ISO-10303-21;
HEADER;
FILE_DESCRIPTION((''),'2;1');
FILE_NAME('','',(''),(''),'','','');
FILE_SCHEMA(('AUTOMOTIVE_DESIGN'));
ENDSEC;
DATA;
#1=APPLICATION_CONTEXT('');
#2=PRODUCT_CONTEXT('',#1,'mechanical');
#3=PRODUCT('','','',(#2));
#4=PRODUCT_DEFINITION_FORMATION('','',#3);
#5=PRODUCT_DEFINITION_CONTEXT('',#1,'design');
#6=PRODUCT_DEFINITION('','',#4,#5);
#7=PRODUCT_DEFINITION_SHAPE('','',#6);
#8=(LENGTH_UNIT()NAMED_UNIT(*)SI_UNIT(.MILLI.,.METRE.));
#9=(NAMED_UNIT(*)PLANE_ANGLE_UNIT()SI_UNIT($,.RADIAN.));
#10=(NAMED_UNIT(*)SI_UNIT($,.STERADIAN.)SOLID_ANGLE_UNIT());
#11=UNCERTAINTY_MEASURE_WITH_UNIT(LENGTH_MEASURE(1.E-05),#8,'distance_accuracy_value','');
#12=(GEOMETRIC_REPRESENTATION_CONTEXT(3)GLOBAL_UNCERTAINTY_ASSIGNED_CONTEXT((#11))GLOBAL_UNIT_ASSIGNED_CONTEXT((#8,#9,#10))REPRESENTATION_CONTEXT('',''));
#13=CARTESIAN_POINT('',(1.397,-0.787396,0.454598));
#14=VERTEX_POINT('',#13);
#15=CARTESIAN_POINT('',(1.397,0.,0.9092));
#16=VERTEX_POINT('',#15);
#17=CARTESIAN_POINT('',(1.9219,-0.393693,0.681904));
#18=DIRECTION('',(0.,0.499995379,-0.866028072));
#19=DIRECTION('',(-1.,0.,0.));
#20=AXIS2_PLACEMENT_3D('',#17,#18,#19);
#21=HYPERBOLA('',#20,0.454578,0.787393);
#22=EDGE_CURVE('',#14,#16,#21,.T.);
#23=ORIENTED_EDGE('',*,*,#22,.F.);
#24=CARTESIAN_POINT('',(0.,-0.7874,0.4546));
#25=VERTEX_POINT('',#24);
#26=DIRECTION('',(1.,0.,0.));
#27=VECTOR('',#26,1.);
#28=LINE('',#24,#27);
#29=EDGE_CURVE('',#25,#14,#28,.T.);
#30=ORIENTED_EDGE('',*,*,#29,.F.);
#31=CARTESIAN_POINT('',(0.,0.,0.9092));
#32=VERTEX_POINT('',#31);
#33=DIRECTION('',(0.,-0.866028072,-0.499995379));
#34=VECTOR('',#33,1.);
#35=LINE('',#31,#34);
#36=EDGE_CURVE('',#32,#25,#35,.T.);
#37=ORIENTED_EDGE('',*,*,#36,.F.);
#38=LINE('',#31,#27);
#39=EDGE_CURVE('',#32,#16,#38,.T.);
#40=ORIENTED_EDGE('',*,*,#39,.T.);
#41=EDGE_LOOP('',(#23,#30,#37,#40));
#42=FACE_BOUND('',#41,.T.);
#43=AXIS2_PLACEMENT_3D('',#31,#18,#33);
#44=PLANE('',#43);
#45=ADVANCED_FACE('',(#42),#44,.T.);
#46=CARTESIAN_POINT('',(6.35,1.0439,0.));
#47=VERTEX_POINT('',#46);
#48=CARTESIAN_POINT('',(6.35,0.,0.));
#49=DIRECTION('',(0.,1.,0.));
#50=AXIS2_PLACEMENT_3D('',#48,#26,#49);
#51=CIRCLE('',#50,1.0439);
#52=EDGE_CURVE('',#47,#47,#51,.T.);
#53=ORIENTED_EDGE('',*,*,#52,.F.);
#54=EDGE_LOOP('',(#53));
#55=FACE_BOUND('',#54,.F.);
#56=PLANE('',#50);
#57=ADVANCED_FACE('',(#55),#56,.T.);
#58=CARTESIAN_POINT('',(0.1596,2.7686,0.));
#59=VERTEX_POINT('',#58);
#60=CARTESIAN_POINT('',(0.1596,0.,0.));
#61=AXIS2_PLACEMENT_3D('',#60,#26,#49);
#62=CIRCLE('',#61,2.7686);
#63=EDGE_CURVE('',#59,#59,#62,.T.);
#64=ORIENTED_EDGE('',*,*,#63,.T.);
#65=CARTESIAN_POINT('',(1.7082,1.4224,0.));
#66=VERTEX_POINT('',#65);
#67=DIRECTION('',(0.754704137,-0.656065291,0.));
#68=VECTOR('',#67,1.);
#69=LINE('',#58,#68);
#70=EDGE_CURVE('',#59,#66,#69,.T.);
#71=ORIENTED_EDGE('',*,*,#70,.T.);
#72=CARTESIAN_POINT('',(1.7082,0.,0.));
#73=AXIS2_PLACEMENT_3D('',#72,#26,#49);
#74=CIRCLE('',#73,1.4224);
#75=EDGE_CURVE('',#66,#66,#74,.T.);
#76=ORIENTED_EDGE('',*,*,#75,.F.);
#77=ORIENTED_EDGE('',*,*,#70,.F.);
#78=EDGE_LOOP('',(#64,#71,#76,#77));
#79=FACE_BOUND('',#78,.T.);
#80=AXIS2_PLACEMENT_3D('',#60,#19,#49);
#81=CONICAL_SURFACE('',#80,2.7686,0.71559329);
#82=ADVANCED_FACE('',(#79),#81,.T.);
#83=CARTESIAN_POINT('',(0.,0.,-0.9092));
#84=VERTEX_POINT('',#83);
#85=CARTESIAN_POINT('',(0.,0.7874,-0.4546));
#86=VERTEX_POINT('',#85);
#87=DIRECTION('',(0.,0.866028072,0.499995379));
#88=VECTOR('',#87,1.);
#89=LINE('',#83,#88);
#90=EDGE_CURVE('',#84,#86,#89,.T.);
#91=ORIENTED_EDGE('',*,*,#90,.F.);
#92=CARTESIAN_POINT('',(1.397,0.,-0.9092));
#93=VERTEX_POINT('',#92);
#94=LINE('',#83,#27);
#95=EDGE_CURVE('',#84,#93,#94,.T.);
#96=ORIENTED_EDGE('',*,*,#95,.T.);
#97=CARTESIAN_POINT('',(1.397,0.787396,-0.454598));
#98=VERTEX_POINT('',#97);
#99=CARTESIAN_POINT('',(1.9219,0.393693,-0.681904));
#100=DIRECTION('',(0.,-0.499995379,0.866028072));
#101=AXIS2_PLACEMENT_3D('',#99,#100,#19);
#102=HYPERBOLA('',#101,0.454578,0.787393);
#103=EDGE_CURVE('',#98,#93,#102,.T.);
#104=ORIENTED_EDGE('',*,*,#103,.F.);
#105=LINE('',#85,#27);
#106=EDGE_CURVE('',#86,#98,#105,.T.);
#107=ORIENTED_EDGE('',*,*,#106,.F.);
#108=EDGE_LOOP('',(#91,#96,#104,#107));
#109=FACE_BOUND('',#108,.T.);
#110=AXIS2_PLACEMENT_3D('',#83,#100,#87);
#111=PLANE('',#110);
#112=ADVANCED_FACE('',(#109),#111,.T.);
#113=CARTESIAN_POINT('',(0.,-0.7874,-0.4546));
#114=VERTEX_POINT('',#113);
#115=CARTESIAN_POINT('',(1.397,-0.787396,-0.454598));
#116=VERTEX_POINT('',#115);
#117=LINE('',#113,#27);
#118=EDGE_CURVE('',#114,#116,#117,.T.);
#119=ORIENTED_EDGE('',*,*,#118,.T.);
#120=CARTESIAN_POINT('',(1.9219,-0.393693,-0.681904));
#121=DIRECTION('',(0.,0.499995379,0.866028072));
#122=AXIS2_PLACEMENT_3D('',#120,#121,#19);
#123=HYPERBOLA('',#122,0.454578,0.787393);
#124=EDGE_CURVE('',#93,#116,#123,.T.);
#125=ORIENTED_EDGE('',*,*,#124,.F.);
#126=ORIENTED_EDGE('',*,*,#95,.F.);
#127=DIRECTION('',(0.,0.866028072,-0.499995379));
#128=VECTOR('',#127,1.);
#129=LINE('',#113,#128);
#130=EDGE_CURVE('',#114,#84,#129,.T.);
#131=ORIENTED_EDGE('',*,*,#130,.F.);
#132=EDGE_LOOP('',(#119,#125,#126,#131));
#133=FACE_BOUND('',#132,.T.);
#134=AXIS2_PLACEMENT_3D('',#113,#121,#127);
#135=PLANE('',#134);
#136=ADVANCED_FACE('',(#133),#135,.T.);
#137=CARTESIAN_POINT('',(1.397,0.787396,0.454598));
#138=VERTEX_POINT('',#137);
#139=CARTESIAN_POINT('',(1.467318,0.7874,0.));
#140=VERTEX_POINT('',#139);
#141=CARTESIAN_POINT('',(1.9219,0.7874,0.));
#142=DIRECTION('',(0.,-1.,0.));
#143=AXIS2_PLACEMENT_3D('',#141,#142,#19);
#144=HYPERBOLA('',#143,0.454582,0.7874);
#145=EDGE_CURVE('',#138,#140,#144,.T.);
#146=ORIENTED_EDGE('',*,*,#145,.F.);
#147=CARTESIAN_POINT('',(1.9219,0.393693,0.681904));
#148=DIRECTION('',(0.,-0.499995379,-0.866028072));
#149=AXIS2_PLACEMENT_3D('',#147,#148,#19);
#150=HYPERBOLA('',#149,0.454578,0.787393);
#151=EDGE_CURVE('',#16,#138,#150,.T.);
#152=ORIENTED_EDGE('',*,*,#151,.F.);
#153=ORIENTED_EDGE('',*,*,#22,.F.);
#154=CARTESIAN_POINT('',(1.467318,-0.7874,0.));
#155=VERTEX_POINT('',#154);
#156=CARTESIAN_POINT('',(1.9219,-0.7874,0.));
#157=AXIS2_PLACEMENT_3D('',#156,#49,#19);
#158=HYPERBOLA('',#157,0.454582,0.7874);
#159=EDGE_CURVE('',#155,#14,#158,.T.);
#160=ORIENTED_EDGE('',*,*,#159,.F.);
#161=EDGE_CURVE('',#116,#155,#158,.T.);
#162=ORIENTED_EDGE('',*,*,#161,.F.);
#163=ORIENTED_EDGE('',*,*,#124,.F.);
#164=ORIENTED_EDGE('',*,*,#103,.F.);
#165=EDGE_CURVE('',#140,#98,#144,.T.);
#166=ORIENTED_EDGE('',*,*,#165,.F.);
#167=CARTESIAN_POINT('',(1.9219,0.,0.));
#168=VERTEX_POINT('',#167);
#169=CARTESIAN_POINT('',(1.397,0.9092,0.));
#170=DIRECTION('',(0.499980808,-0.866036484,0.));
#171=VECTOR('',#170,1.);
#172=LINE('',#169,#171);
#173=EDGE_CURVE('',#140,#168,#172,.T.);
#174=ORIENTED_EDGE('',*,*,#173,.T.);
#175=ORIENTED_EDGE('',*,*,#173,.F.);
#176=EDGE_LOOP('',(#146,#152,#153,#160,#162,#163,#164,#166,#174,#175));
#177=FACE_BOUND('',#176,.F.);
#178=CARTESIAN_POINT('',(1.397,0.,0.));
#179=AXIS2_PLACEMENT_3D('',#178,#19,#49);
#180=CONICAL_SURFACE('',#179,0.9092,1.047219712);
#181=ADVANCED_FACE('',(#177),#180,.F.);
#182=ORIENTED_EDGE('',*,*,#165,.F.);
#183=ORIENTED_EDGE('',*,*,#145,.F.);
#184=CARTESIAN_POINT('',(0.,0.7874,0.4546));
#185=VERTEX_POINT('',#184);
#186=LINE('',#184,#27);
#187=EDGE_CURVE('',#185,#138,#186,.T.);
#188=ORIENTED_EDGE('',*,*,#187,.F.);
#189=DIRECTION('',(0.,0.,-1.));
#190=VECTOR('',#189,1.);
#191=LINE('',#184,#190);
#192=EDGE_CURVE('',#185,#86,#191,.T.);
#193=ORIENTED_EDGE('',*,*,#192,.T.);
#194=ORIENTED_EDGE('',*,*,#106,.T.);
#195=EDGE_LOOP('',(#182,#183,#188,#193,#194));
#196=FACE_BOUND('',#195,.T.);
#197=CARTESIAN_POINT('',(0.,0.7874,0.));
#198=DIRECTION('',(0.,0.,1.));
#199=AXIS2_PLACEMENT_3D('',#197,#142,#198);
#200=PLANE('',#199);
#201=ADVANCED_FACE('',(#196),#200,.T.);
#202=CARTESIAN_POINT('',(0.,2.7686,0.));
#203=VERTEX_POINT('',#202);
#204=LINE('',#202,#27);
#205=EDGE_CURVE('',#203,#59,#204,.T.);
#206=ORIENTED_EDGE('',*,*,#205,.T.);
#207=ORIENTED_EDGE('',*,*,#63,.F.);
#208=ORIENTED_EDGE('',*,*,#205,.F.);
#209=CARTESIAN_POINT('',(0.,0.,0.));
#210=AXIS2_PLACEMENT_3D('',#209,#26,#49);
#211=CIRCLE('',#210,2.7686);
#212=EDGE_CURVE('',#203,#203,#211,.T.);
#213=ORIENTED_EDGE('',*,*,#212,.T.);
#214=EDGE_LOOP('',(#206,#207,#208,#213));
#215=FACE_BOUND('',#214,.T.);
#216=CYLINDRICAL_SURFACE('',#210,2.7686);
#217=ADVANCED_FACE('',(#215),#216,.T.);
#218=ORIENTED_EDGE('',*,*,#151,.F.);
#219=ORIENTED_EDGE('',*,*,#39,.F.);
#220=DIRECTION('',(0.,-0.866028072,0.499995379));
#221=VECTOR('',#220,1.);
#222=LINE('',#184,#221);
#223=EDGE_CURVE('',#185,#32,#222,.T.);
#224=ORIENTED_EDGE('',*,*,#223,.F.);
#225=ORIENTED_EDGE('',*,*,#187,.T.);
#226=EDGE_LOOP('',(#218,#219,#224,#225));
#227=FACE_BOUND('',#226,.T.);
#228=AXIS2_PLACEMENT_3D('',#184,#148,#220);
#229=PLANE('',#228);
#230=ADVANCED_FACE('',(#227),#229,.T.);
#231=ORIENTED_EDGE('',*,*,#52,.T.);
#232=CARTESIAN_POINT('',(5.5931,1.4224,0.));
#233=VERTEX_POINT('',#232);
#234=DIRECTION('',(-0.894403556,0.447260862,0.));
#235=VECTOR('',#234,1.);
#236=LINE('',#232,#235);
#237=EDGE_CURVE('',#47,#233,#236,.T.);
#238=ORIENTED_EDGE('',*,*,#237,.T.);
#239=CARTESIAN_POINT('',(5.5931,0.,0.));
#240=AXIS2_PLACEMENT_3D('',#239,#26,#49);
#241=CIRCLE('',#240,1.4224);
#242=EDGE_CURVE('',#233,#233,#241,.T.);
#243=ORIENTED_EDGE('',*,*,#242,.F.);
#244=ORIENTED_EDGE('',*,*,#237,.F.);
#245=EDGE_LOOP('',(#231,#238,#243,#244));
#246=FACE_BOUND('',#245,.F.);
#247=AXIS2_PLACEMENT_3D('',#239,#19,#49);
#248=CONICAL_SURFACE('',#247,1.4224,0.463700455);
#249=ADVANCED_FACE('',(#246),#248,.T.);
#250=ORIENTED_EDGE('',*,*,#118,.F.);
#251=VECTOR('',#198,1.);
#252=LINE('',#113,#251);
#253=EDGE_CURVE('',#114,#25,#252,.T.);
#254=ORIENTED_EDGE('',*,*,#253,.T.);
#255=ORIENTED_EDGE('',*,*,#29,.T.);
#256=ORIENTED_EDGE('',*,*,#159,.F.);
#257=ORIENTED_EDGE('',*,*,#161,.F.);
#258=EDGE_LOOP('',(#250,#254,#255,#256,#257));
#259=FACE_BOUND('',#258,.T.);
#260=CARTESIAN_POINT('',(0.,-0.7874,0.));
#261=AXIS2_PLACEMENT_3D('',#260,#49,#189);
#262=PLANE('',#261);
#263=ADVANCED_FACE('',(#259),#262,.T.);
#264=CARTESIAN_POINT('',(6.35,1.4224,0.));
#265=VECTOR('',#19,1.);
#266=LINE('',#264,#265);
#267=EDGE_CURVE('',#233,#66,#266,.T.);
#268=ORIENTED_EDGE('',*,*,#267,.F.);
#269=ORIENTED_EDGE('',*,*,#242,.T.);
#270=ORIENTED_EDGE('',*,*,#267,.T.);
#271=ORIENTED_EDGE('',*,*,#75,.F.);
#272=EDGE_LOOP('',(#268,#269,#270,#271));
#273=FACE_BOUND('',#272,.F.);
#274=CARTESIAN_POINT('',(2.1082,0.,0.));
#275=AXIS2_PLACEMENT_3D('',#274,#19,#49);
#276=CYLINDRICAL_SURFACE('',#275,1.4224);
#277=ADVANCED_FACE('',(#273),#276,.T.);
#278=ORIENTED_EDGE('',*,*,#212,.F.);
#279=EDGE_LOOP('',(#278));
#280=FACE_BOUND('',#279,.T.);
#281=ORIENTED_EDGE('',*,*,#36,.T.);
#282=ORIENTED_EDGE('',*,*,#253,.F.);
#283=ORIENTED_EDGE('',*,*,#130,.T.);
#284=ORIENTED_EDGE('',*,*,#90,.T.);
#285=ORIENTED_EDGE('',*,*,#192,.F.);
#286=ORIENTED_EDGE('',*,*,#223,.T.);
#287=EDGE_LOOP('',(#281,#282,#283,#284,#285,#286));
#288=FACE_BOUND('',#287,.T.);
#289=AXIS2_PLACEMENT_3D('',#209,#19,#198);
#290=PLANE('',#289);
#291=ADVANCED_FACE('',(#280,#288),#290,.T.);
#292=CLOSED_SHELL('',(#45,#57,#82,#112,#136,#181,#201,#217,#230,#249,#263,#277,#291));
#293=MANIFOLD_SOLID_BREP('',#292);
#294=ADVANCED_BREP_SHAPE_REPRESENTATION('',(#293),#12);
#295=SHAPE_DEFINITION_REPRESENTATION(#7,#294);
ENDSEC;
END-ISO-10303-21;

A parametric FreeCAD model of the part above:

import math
import FreeCAD as App
import Part
import Sketcher
Q = App.Units.Quantity


def edges_at(feature, points):
    """Names of the edges that pass closest to the given points."""
    edges = feature.Shape.Edges
    near = lambda p: min(range(len(edges)), key=lambda i: edges[i].distToShape(Part.Vertex(*p))[0])
    return sorted({f"Edge{near(p) + 1}" for p in points})

doc = App.newDocument("Part")
body = doc.addObject("PartDesign::Body", "Body")

# Sketch on XY plane
sketch1 = body.newObject("Sketcher::SketchObject", "Sketch")
sketch1.AttachmentSupport = (doc.getObject("XY_Plane"), [""])
sketch1.MapMode = "FlatFace"
sketch1.addGeometry(Part.LineSegment(App.Vector(1.92, 0, 0), App.Vector(6.35, 0, 0)), False)
sketch1.addGeometry(Part.LineSegment(App.Vector(6.35, 0, 0), App.Vector(6.35, 1.42, 0)), False)
sketch1.addGeometry(Part.LineSegment(App.Vector(6.35, 1.42, 0), App.Vector(1.71, 1.42, 0)), False)
sketch1.addGeometry(Part.LineSegment(App.Vector(1.71, 1.42, 0), App.Vector(0.16, 2.77, 0)), False)
sketch1.addGeometry(Part.LineSegment(App.Vector(0.16, 2.77, 0), App.Vector(0, 2.77, 0)), False)
sketch1.addGeometry(Part.LineSegment(App.Vector(0, 2.77, 0), App.Vector(0, 0.91, 0)), False)
sketch1.addGeometry(Part.LineSegment(App.Vector(0, 0.91, 0), App.Vector(1.4, 0.91, 0)), False)
sketch1.addGeometry(Part.LineSegment(App.Vector(1.4, 0.91, 0), App.Vector(1.92, 0, 0)), False)
sketch1.addConstraint(Sketcher.Constraint("Coincident", 0, 2, 1, 1))
sketch1.addConstraint(Sketcher.Constraint("Coincident", 1, 2, 2, 1))
sketch1.addConstraint(Sketcher.Constraint("Coincident", 2, 2, 3, 1))
sketch1.addConstraint(Sketcher.Constraint("Coincident", 3, 2, 4, 1))
sketch1.addConstraint(Sketcher.Constraint("Coincident", 4, 2, 5, 1))
sketch1.addConstraint(Sketcher.Constraint("Coincident", 5, 2, 6, 1))
sketch1.addConstraint(Sketcher.Constraint("Coincident", 6, 2, 7, 1))
sketch1.addConstraint(Sketcher.Constraint("Coincident", 7, 2, 0, 1))
sketch1.addConstraint(Sketcher.Constraint("Horizontal", 0))
sketch1.addConstraint(Sketcher.Constraint("Vertical", 1))
sketch1.addConstraint(Sketcher.Constraint("Horizontal", 2))
sketch1.addConstraint(Sketcher.Constraint("Horizontal", 4))
sketch1.addConstraint(Sketcher.Constraint("Vertical", 5))
sketch1.addConstraint(Sketcher.Constraint("Horizontal", 6))
sketch1.addConstraint(Sketcher.Constraint("PointOnObject", 0, 2, -1))
sketch1.addConstraint(Sketcher.Constraint("PointOnObject", 4, 2, -2))
sketch1.addConstraint(Sketcher.Constraint("DistanceX", 6, 1, 6, 2, Q("0.055 in")))
sketch1.addConstraint(Sketcher.Constraint("DistanceX", -1, 1, 0, 2, Q("0.25 in")))
sketch1.addConstraint(Sketcher.Constraint("Angle", 3, Q("138.9995 deg")))
sketch1.addConstraint(Sketcher.Constraint("DistanceY", 1, 1, 1, 2, Q("0.056 in")))
sketch1.addConstraint(Sketcher.Constraint("DistanceX", -1, 1, 2, 2, 1.7082))
sketch1.addConstraint(Sketcher.Constraint("DistanceY", 5, 2, 5, 1, Q("0.0732 in")))
sketch1.addConstraint(Sketcher.Constraint("DistanceY", -1, 1, 3, 2, Q("0.109 in")))
sketch1.addConstraint(Sketcher.Constraint("DistanceX", 0, 1, 0, 2, 4.428))
revolution = body.newObject("PartDesign::Revolution", "Revolution")
revolution.Profile = sketch1
revolution.ReferenceAxis = (sketch1, ["H_Axis"])
revolution.Angle = 360

# Sketch on YZ plane
sketch2 = body.newObject("Sketcher::SketchObject", "Sketch001")
sketch2.AttachmentSupport = (doc.getObject("YZ_Plane"), [""])
sketch2.MapMode = "FlatFace"
sketch2.addGeometry(Part.LineSegment(App.Vector(0.8, 0.5, 0), App.Vector(0, 0.9, 0)), False)
sketch2.addGeometry(Part.ArcOfCircle(Part.Circle(App.Vector(0, 0, 0), App.Vector(0, 0, 1), 0.9), math.radians(30), math.radians(90)), False)
sketch2.addGeometry(Part.ArcOfCircle(Part.Circle(App.Vector(0, 0, 0), App.Vector(0, 0, 1), 0.9), math.radians(90), math.radians(150)), False)
sketch2.addGeometry(Part.LineSegment(App.Vector(0, 0.9, 0), App.Vector(-0.8, 0.5, 0)), False)
sketch2.addGeometry(Part.ArcOfCircle(Part.Circle(App.Vector(0, 0, 0), App.Vector(0, 0, 1), 0.9), math.radians(-30), math.radians(30)), False)
sketch2.addGeometry(Part.LineSegment(App.Vector(0.8, 0.5, 0), App.Vector(0.8, -0.5, 0)), False)
sketch2.addGeometry(Part.LineSegment(App.Vector(-0.8, 0.5, 0), App.Vector(-0.8, -0.5, 0)), False)
sketch2.addGeometry(Part.ArcOfCircle(Part.Circle(App.Vector(0, 0, 0), App.Vector(0, 0, 1), 0.9), math.radians(150), math.radians(210)), False)
sketch2.addGeometry(Part.LineSegment(App.Vector(-0.8, -0.5, 0), App.Vector(0, -0.9, 0)), False)
sketch2.addGeometry(Part.ArcOfCircle(Part.Circle(App.Vector(0, 0, 0), App.Vector(0, 0, 1), 0.9), math.radians(-150), math.radians(-90)), False)
sketch2.addGeometry(Part.ArcOfCircle(Part.Circle(App.Vector(0, 0, 0), App.Vector(0, 0, 1), 0.9), math.radians(-90), math.radians(-30)), False)
sketch2.addGeometry(Part.LineSegment(App.Vector(0, -0.9, 0), App.Vector(0.8, -0.5, 0)), False)
sketch2.addConstraint(Sketcher.Constraint("Coincident", 0, 1, 1, 1))
sketch2.addConstraint(Sketcher.Constraint("Coincident", 1, 2, 0, 2))
sketch2.addConstraint(Sketcher.Constraint("Coincident", 2, 1, 3, 1))
sketch2.addConstraint(Sketcher.Constraint("Coincident", 3, 2, 2, 2))
sketch2.addConstraint(Sketcher.Constraint("Coincident", 4, 1, 5, 2))
sketch2.addConstraint(Sketcher.Constraint("Coincident", 5, 1, 4, 2))
sketch2.addConstraint(Sketcher.Constraint("Coincident", 6, 1, 7, 1))
sketch2.addConstraint(Sketcher.Constraint("Coincident", 7, 2, 6, 2))
sketch2.addConstraint(Sketcher.Constraint("Coincident", 8, 1, 9, 1))
sketch2.addConstraint(Sketcher.Constraint("Coincident", 9, 2, 8, 2))
sketch2.addConstraint(Sketcher.Constraint("Coincident", 10, 1, 11, 1))
sketch2.addConstraint(Sketcher.Constraint("Coincident", 11, 2, 10, 2))
sketch2.addConstraint(Sketcher.Constraint("Vertical", 5))
sketch2.addConstraint(Sketcher.Constraint("Vertical", 6))
sketch2.addConstraint(Sketcher.Constraint("Coincident", 1, 3, -1, 1))
sketch2.addConstraint(Sketcher.Constraint("Coincident", 2, 3, -1, 1))
sketch2.addConstraint(Sketcher.Constraint("Coincident", 4, 3, -1, 1))
sketch2.addConstraint(Sketcher.Constraint("Coincident", 7, 3, -1, 1))
sketch2.addConstraint(Sketcher.Constraint("Coincident", 9, 3, -1, 1))
sketch2.addConstraint(Sketcher.Constraint("Coincident", 10, 3, -1, 1))
sketch2.addConstraint(Sketcher.Constraint("Coincident", 2, 1, 1, 2))
sketch2.addConstraint(Sketcher.Constraint("Coincident", 5, 1, 0, 1))
sketch2.addConstraint(Sketcher.Constraint("Coincident", 6, 1, 3, 2))
sketch2.addConstraint(Sketcher.Constraint("Coincident", 8, 1, 7, 2))
sketch2.addConstraint(Sketcher.Constraint("Coincident", 10, 1, 9, 2))
sketch2.addConstraint(Sketcher.Constraint("PointOnObject", 1, 2, -2))
sketch2.addConstraint(Sketcher.Constraint("PointOnObject", 9, 2, -2))
sketch2.addConstraint(Sketcher.Constraint("Parallel", 0, 8))
sketch2.addConstraint(Sketcher.Constraint("Parallel", 3, 11))
sketch2.addConstraint(Sketcher.Constraint("Angle", 0, Q("150.0003 deg")))
sketch2.addConstraint(Sketcher.Constraint("Radius", 1, Q("0.0358 in")))
pad1 = body.newObject("PartDesign::Pad", "Pad")
pad1.Profile = sketch2
pad1.Type = "UpToFirst"
doc.recompute()

chamfer = body.newObject("PartDesign::Chamfer", "Chamfer")
chamfer.Base = (pad1, edges_at(pad1, [(6.35, -1.422, 0)]))
chamfer.ChamferType = "Two distances"
chamfer.Size = Q("0.0149016 in")
chamfer.Size2 = Q("0.0297992 in")

doc.recompute()
